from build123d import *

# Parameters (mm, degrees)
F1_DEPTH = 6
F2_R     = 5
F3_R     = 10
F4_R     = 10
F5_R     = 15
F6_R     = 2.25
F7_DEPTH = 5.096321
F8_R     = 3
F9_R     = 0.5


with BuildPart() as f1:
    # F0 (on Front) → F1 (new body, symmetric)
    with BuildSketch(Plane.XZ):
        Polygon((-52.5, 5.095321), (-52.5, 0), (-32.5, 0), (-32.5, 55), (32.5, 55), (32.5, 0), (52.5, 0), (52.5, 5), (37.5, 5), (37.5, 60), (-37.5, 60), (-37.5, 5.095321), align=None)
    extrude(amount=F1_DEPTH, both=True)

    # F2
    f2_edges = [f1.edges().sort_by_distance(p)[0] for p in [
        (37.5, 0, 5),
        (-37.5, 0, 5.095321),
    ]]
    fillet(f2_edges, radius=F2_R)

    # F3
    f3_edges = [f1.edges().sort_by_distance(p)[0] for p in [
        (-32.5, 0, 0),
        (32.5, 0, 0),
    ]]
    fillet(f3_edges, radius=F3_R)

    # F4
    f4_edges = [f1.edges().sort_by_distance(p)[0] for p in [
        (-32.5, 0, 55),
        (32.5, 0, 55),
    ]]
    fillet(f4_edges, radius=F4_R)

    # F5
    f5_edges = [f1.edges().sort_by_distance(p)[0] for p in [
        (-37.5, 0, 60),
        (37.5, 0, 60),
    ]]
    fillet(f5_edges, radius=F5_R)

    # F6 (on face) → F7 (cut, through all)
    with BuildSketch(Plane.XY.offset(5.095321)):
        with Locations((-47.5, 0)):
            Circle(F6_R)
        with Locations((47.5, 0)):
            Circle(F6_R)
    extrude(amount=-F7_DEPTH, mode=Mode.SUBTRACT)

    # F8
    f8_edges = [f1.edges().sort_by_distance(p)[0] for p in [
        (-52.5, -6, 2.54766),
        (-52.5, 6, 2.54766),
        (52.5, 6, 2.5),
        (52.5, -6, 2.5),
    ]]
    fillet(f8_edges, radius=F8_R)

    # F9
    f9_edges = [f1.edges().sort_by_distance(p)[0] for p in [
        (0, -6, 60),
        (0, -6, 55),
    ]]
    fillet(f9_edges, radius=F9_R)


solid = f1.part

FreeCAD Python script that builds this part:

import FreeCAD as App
import Part
import Sketcher

V = App.Vector
Q = App.Units.Quantity


def edges_at(feature, points):
    """Names of the edges that pass closest to the given points."""
    edges = feature.Shape.Edges
    near = lambda p: min(range(len(edges)), key=lambda i: edges[i].distToShape(Part.Vertex(*p))[0])
    return sorted({f"Edge{near(p) + 1}" for p in points})

doc = App.newDocument("Part")
body = doc.addObject("PartDesign::Body", "Body")

sketch1 = body.newObject("Sketcher::SketchObject", "Sketch")
sketch1.AttachmentSupport = (doc.getObject("XZ_Plane"), [""])
sketch1.MapMode = "FlatFace"
sketch1.addGeometry(Part.LineSegment(V(-52.5, 5.095321, 0), V(-52.5, 0, 0)), False)
sketch1.addGeometry(Part.LineSegment(V(-52.5, 0, 0), V(-32.5, 0, 0)), False)
sketch1.addGeometry(Part.LineSegment(V(-32.5, 0, 0), V(-32.5, 55, 0)), False)
sketch1.addGeometry(Part.LineSegment(V(-32.5, 55, 0), V(32.5, 55, 0)), False)
sketch1.addGeometry(Part.LineSegment(V(32.5, 55, 0), V(32.5, 0, 0)), False)
sketch1.addGeometry(Part.LineSegment(V(32.5, 0, 0), V(52.5, 0, 0)), False)
sketch1.addGeometry(Part.LineSegment(V(52.5, 0, 0), V(52.5, 5, 0)), False)
sketch1.addGeometry(Part.LineSegment(V(52.5, 5, 0), V(37.5, 5, 0)), False)
sketch1.addGeometry(Part.LineSegment(V(37.5, 5, 0), V(37.5, 60, 0)), False)
sketch1.addGeometry(Part.LineSegment(V(37.5, 60, 0), V(-37.5, 60, 0)), False)
sketch1.addGeometry(Part.LineSegment(V(-37.5, 60, 0), V(-37.5, 5.095321, 0)), False)
sketch1.addGeometry(Part.LineSegment(V(-37.5, 5.095321, 0), V(-52.5, 5.095321, 0)), False)
sketch1.addConstraint(Sketcher.Constraint("Coincident", 0, 2, 1, 1))
sketch1.addConstraint(Sketcher.Constraint("Coincident", 1, 2, 2, 1))
sketch1.addConstraint(Sketcher.Constraint("Coincident", 2, 2, 3, 1))
sketch1.addConstraint(Sketcher.Constraint("Coincident", 3, 2, 4, 1))
sketch1.addConstraint(Sketcher.Constraint("Coincident", 4, 2, 5, 1))
sketch1.addConstraint(Sketcher.Constraint("Coincident", 5, 2, 6, 1))
sketch1.addConstraint(Sketcher.Constraint("Coincident", 6, 2, 7, 1))
sketch1.addConstraint(Sketcher.Constraint("Coincident", 7, 2, 8, 1))
sketch1.addConstraint(Sketcher.Constraint("Coincident", 8, 2, 9, 1))
sketch1.addConstraint(Sketcher.Constraint("Coincident", 9, 2, 10, 1))
sketch1.addConstraint(Sketcher.Constraint("Coincident", 10, 2, 11, 1))
sketch1.addConstraint(Sketcher.Constraint("Coincident", 11, 2, 0, 1))
sketch1.addConstraint(Sketcher.Constraint("Vertical", 0))
sketch1.addConstraint(Sketcher.Constraint("Horizontal", 1))
sketch1.addConstraint(Sketcher.Constraint("Vertical", 2))
sketch1.addConstraint(Sketcher.Constraint("Horizontal", 3))
sketch1.addConstraint(Sketcher.Constraint("Vertical", 4))
sketch1.addConstraint(Sketcher.Constraint("Horizontal", 5))
sketch1.addConstraint(Sketcher.Constraint("Vertical", 6))
sketch1.addConstraint(Sketcher.Constraint("Horizontal", 7))
sketch1.addConstraint(Sketcher.Constraint("Vertical", 8))
sketch1.addConstraint(Sketcher.Constraint("Horizontal", 9))
sketch1.addConstraint(Sketcher.Constraint("Vertical", 10))
sketch1.addConstraint(Sketcher.Constraint("Horizontal", 11))
sketch1.addConstraint(Sketcher.Constraint("Symmetric", 1, 2, 4, 2, -1, 1))
sketch1.addConstraint(Sketcher.Constraint("Symmetric", 0, 2, 5, 2, -2))
sketch1.addConstraint(Sketcher.Constraint("Equal", 7, 11))
sketch1.addConstraint(Sketcher.Constraint("Equal", 4, 8))
sketch1.addConstraint(Sketcher.Constraint("DistanceX", 1, 1, 1, 2, Q("20 mm")))
sketch1.addConstraint(Sketcher.Constraint("DistanceX", 3, 1, 3, 2, Q("65 mm")))
sketch1.addConstraint(Sketcher.Constraint("DistanceX", 7, 2, 7, 1, Q("15 mm")))
sketch1.addConstraint(Sketcher.Constraint("DistanceY", 2, 1, 2, 2, Q("55 mm")))
sketch1.addConstraint(Sketcher.Constraint("DistanceY", 6, 1, 6, 2, Q("5 mm")))
sketch1.addConstraint(Sketcher.Constraint("DistanceY", 0, 2, 0, 1, Q("5.095321 mm")))
pad1 = body.newObject("PartDesign::Pad", "Pad")
pad1.Profile = sketch1
pad1.Length = 12
pad1.Midplane = True
doc.recompute()

fillet = body.newObject("PartDesign::Fillet", "Fillet")
fillet.Base = (pad1, edges_at(pad1, [(37.5, 0, 5), (-37.5, 0, 5.095)]))
fillet.Radius = 5
doc.recompute()

fillet2 = body.newObject("PartDesign::Fillet", "Fillet001")
fillet2.Base = (fillet, edges_at(fillet, [(-32.5, 0, 0), (32.5, 0, 0)]))
fillet2.Radius = 10
doc.recompute()

fillet3 = body.newObject("PartDesign::Fillet", "Fillet002")
fillet3.Base = (fillet2, edges_at(fillet2, [(-32.5, 0, 55), (32.5, 0, 55)]))
fillet3.Radius = 10
doc.recompute()

fillet4 = body.newObject("PartDesign::Fillet", "Fillet003")
fillet4.Base = (fillet3, edges_at(fillet3, [(-37.5, 0, 60), (37.5, 0, 60)]))
fillet4.Radius = 15

sketch2 = body.newObject("Sketcher::SketchObject", "Sketch001")
sketch2.AttachmentSupport = (doc.getObject("XY_Plane"), [""])
sketch2.MapMode = "FlatFace"
sketch2.AttachmentOffset = App.Placement(V(0, 0, 5.095321), App.Rotation())
sketch2.addGeometry(Part.Circle(V(-47.5, 0, 0), V(0, 0, 1), 2.25), False)
sketch2.addGeometry(Part.Circle(V(47.5, 0, 0), V(0, 0, 1), 2.25), False)
sketch2.addConstraint(Sketcher.Constraint("Equal", 0, 1))
sketch2.addConstraint(Sketcher.Constraint("Symmetric", 0, 3, 1, 3, -1, 1))
sketch2.addConstraint(Sketcher.Constraint("PointOnObject", 0, 3, -1))
sketch2.addConstraint(Sketcher.Constraint("Diameter", 0, Q("4.5 mm")))
sketch2.addConstraint(Sketcher.Constraint("DistanceX", 0, 3, 1, 3, Q("95 mm")))
pocket1 = body.newObject("PartDesign::Pocket", "Pocket")
pocket1.Profile = sketch2
pocket1.Type = "ThroughAll"
doc.recompute()

fillet5 = body.newObject("PartDesign::Fillet", "Fillet004")
fillet5.Base = (pocket1, edges_at(pocket1, [
    (-52.5, -6, 2.548),
    (-52.5, 6, 2.548),
    (52.5, 6, 2.5),
    (52.5, -6, 2.5),
]))
fillet5.Radius = 3
doc.recompute()

fillet6 = body.newObject("PartDesign::Fillet", "Fillet005")
fillet6.Base = (fillet5, edges_at(fillet5, [(0, -6, 60), (0, -6, 55)]))
fillet6.Radius = 0.5

doc.recompute()
